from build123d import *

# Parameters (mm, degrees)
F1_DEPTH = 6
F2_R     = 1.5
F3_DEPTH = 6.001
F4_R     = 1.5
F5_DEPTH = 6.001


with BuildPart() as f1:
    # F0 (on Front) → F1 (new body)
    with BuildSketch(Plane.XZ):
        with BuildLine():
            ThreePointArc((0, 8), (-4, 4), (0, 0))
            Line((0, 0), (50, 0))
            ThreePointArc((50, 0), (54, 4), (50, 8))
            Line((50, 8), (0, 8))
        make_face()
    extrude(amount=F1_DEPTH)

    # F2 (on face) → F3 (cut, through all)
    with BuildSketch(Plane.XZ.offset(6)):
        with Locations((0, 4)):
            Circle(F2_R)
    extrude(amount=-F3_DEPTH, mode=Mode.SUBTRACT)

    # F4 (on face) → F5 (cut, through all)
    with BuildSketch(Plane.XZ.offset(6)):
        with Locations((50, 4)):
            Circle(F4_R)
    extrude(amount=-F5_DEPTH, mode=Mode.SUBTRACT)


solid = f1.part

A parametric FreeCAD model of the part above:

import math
import FreeCAD as App
import Part
import Sketcher
from FreeCAD import Vector
Q = App.Units.Quantity

doc = App.newDocument("Part")
body = doc.addObject("PartDesign::Body", "Body")

sketch1 = body.newObject("Sketcher::SketchObject", "Sketch")
sketch1.AttachmentSupport = (doc.getObject("XZ_Plane"), [""])
sketch1.MapMode = "FlatFace"
sketch1.addGeometry([
    Part.ArcOfCircle(Part.Circle(Vector(0, 4, 0), Vector(0, 0, 1), 4), math.radians(90), math.radians(270)),
    Part.LineSegment(Vector(0, 0, 0), Vector(50, 0, 0)),
    Part.ArcOfCircle(Part.Circle(Vector(50, 4, 0), Vector(0, 0, 1), 4), math.radians(-90), math.radians(90)),
    Part.LineSegment(Vector(50, 8, 0), Vector(0, 8, 0)),
], False)
sketch1.addConstraint([
    Sketcher.Constraint("Tangent", 0, 2, 1, 1),
    Sketcher.Constraint("Tangent", 1, 2, 2, 1),
    Sketcher.Constraint("Tangent", 2, 2, 3, 1),
    Sketcher.Constraint("Tangent", 3, 2, 0, 1),
    Sketcher.Constraint("Horizontal", 1),
    Sketcher.Constraint("Horizontal", 3),
    Sketcher.Constraint("Coincident", 0, 2, -1, 1),
    Sketcher.Constraint("Radius", 0, Q("4 mm")),
    Sketcher.Constraint("DistanceX", 1, 1, 1, 2, Q("50 mm")),
])
pad1 = body.newObject("PartDesign::Pad", "Pad")
pad1.Profile = sketch1
pad1.Length = 6

sketch2 = body.newObject("Sketcher::SketchObject", "Sketch001")
sketch2.AttachmentSupport = (doc.getObject("XZ_Plane"), [""])
sketch2.MapMode = "FlatFace"
sketch2.AttachmentOffset = App.Placement(Vector(0, 0, 6), App.Rotation())
sketch2.addGeometry(Part.Circle(Vector(0, 4, 0), Vector(0, 0, 1), 1.5), False)
sketch2.addConstraint([
    Sketcher.Constraint("PointOnObject", 0, 3, -2),
    Sketcher.Constraint("Diameter", 0, Q("3 mm")),
    Sketcher.Constraint("DistanceY", -1, 1, 0, 3, Q("4 mm")),
])
pocket1 = body.newObject("PartDesign::Pocket", "Pocket")
pocket1.Profile = sketch2
pocket1.Type = "ThroughAll"

sketch3 = body.newObject("Sketcher::SketchObject", "Sketch002")
sketch3.AttachmentSupport = (doc.getObject("XZ_Plane"), [""])
sketch3.MapMode = "FlatFace"
sketch3.AttachmentOffset = App.Placement(Vector(0, 0, 6), App.Rotation())
sketch3.addGeometry(Part.Circle(Vector(50, 4, 0), Vector(0, 0, 1), 1.5), False)
sketch3.addConstraint([
    Sketcher.Constraint("Diameter", 0, Q("3 mm")),
    Sketcher.Constraint("DistanceX", -1, 1, 0, 3, Q("50 mm")),
    Sketcher.Constraint("DistanceY", -1, 1, 0, 3, Q("4 mm")),
])
pocket2 = body.newObject("PartDesign::Pocket", "Pocket001")
pocket2.Profile = sketch3
pocket2.Type = "ThroughAll"

doc.recompute()
